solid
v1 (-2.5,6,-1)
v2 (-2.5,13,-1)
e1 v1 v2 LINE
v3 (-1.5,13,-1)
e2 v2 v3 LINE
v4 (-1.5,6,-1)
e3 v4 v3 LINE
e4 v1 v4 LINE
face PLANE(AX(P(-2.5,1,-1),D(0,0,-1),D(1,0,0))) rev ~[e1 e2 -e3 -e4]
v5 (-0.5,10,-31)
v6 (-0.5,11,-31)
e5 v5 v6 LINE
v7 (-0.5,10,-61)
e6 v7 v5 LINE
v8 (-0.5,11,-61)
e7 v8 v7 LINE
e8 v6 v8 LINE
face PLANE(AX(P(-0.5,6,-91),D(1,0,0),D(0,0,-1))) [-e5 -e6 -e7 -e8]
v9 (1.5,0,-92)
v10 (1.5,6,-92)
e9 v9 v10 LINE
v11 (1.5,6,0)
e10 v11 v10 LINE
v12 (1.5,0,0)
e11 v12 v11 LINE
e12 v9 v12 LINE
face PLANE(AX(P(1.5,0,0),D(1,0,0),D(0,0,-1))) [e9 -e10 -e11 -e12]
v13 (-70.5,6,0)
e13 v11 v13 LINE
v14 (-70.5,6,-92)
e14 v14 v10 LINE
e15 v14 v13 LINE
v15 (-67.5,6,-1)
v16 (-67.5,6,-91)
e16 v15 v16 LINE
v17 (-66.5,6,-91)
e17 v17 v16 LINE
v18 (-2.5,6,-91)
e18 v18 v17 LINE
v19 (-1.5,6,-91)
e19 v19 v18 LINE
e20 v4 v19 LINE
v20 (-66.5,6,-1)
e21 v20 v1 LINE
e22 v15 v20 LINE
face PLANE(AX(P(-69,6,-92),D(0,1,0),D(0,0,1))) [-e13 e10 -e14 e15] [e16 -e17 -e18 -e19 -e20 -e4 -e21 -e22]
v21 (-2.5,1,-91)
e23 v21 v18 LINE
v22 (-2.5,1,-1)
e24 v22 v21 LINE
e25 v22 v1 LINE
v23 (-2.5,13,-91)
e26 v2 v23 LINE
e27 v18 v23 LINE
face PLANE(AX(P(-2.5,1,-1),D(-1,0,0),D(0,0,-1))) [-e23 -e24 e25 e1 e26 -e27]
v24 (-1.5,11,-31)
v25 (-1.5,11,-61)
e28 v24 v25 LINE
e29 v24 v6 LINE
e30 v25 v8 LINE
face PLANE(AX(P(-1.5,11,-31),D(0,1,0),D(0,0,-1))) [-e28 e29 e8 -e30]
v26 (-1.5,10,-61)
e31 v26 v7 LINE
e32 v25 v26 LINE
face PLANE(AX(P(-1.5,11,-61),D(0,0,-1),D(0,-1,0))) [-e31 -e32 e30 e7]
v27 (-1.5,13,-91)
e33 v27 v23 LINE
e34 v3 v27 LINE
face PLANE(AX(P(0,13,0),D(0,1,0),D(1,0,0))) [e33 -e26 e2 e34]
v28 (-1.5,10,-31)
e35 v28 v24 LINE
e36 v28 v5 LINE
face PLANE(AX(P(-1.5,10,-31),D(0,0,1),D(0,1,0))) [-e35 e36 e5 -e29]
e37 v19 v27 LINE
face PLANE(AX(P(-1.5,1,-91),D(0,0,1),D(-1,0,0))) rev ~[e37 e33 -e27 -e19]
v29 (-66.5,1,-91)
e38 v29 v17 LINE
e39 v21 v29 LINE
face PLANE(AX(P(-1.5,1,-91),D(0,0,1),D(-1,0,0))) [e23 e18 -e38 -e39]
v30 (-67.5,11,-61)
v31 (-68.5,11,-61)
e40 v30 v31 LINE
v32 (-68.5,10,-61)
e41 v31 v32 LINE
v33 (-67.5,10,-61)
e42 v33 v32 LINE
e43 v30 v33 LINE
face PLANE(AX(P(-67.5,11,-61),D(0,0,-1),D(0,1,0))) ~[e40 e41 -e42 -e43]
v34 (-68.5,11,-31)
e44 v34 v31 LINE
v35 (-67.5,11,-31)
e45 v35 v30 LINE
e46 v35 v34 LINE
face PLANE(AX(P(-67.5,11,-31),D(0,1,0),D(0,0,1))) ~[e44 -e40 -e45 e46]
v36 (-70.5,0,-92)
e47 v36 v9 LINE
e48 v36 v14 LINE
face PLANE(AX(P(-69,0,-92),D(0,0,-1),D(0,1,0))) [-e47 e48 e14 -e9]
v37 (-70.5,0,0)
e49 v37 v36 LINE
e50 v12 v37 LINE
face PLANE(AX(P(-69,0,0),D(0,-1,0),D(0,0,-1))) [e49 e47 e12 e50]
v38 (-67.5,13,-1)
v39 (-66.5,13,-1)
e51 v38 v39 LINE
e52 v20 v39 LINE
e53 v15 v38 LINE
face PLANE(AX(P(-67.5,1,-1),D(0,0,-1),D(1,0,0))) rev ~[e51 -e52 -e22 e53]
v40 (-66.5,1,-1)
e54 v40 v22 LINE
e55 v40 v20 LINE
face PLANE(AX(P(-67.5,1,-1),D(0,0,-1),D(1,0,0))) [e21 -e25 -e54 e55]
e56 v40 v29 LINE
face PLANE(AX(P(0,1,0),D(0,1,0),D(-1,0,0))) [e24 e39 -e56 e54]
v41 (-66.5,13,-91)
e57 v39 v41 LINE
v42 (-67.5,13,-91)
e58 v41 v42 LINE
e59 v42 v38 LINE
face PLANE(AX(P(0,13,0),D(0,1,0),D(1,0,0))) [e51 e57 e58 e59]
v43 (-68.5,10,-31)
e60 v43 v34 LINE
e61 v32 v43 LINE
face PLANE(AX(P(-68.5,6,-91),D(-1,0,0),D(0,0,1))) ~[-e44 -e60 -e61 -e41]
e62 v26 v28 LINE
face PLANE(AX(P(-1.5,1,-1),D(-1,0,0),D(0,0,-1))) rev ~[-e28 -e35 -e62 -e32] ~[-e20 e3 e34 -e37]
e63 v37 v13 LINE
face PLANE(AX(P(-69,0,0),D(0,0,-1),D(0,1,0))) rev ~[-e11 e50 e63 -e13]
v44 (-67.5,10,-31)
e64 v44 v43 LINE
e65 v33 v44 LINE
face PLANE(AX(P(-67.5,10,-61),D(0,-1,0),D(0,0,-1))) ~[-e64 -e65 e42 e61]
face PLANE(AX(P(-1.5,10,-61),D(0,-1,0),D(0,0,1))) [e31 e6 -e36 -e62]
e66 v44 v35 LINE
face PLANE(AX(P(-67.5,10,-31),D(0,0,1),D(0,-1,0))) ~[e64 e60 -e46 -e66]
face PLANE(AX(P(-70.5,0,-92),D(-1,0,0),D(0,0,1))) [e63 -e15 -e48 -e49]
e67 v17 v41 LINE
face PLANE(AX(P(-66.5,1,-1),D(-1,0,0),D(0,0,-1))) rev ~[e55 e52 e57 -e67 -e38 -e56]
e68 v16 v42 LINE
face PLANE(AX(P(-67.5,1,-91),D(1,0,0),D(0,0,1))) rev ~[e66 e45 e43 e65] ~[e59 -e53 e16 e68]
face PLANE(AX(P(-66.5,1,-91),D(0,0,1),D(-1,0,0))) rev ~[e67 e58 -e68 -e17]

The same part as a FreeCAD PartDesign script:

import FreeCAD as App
import Part
import Sketcher

doc = App.newDocument("Part")
params = doc.addObject("Spreadsheet::Sheet", "Params")
for row, (alias, value) in enumerate([
    ("sketch1_width", "69 mm"),
    ("sketch1_height", "92 mm"),
    ("pad1_length", "1 mm"),
    ("sketch2_width", "69 mm"),
    ("sketch2_width2", "66 mm"),
    ("sketch2_height", "92 mm"),
    ("pad2_length", "5 mm"),
    ("sketch3_width", "1 mm"),
    ("sketch3_height", "90 mm"),
    ("pad3_length", "12 mm"),
    ("sketch4_width", "1 mm"),
    ("sketch4_height", "30 mm"),
    ("pad4_length", "1 mm"),
    ("sketch5_width", "6 mm"),
    ("sketch5_height", "92 mm"),
    ("pad5_length", "1.5 mm"),
    ("sketch6_width", "6 mm"),
    ("sketch6_height", "92 mm"),
    ("pad6_length", "1.5 mm"),
], start=1):
    params.set(f"A{row}", alias)
    params.set(f"B{row}", "=" + value)
    params.setAlias(f"B{row}", alias)

body = doc.addObject("PartDesign::Body", "Body")

# Sketch on XZ plane
sketch1 = body.newObject("Sketcher::SketchObject", "Sketch")
sketch1.AttachmentSupport = (doc.getObject("XZ_Plane"), [""])
sketch1.MapMode = "FlatFace"
sketch1.addGeometry(Part.LineSegment(App.Vector(-69, 0, 0), App.Vector(0, 0, 0)), False)
sketch1.addGeometry(Part.LineSegment(App.Vector(0, 0, 0), App.Vector(0, -92, 0)), False)
sketch1.addGeometry(Part.LineSegment(App.Vector(0, -92, 0), App.Vector(-69, -92, 0)), False)
sketch1.addGeometry(Part.LineSegment(App.Vector(-69, -92, 0), App.Vector(-69, 0, 0)), False)
sketch1.addConstraint(Sketcher.Constraint("Coincident", 0, 2, 1, 1))
sketch1.addConstraint(Sketcher.Constraint("Coincident", 1, 2, 2, 1))
sketch1.addConstraint(Sketcher.Constraint("Coincident", 2, 2, 3, 1))
sketch1.addConstraint(Sketcher.Constraint("Coincident", 3, 2, 0, 1))
sketch1.addConstraint(Sketcher.Constraint("Horizontal", 0))
sketch1.addConstraint(Sketcher.Constraint("Vertical", 1))
sketch1.addConstraint(Sketcher.Constraint("Horizontal", 2))
sketch1.addConstraint(Sketcher.Constraint("Vertical", 3))
sketch1.addConstraint(Sketcher.Constraint("Coincident", 0, 2, -1, 1))
sketch1.addConstraint(Sketcher.Constraint("DistanceX", 0, 1, 0, 2, 69.0))
sketch1.addConstraint(Sketcher.Constraint("DistanceY", 1, 2, 1, 1, 92.0))
sketch1.setExpression("Constraints[9]", "Params.sketch1_width")
sketch1.setExpression("Constraints[10]", "Params.sketch1_height")
pad1 = body.newObject("PartDesign::Pad", "Pad")
pad1.Profile = sketch1
pad1.setExpression("Length", "Params.pad1_length")
pad1.Reversed = True

# Sketch on XZ plane
sketch2 = body.newObject("Sketcher::SketchObject", "Sketch001")
sketch2.AttachmentSupport = (doc.getObject("XZ_Plane"), [""])
sketch2.MapMode = "FlatFace"
sketch2.AttachmentOffset = App.Placement(App.Vector(0, 0, -1), App.Rotation())
sketch2.addGeometry(Part.LineSegment(App.Vector(-69, -92, 0), App.Vector(-69, 0, 0)), False)
sketch2.addGeometry(Part.LineSegment(App.Vector(-69, 0, 0), App.Vector(0, 0, 0)), False)
sketch2.addGeometry(Part.LineSegment(App.Vector(0, 0, 0), App.Vector(0, -92, 0)), False)
sketch2.addGeometry(Part.LineSegment(App.Vector(0, -92, 0), App.Vector(-69, -92, 0)), False)
sketch2.addGeometry(Part.LineSegment(App.Vector(-1.5, -1, 0), App.Vector(-67.5, -1, 0)), False)
sketch2.addGeometry(Part.LineSegment(App.Vector(-67.5, -1, 0), App.Vector(-67.5, -91, 0)), False)
sketch2.addGeometry(Part.LineSegment(App.Vector(-67.5, -91, 0), App.Vector(-1.5, -91, 0)), False)
sketch2.addGeometry(Part.LineSegment(App.Vector(-1.5, -91, 0), App.Vector(-1.5, -1, 0)), False)
sketch2.addConstraint(Sketcher.Constraint("Coincident", 0, 2, 1, 1))
sketch2.addConstraint(Sketcher.Constraint("Coincident", 1, 2, 2, 1))
sketch2.addConstraint(Sketcher.Constraint("Coincident", 2, 2, 3, 1))
sketch2.addConstraint(Sketcher.Constraint("Coincident", 3, 2, 0, 1))
sketch2.addConstraint(Sketcher.Constraint("Coincident", 4, 2, 5, 1))
sketch2.addConstraint(Sketcher.Constraint("Coincident", 5, 2, 6, 1))
sketch2.addConstraint(Sketcher.Constraint("Coincident", 6, 2, 7, 1))
sketch2.addConstraint(Sketcher.Constraint("Coincident", 7, 2, 4, 1))
sketch2.addConstraint(Sketcher.Constraint("Vertical", 0))
sketch2.addConstraint(Sketcher.Constraint("Horizontal", 1))
sketch2.addConstraint(Sketcher.Constraint("Vertical", 2))
sketch2.addConstraint(Sketcher.Constraint("Horizontal", 3))
sketch2.addConstraint(Sketcher.Constraint("Horizontal", 4))
sketch2.addConstraint(Sketcher.Constraint("Vertical", 5))
sketch2.addConstraint(Sketcher.Constraint("Horizontal", 6))
sketch2.addConstraint(Sketcher.Constraint("Vertical", 7))
sketch2.addConstraint(Sketcher.Constraint("Coincident", 1, 2, -1, 1))
sketch2.addConstraint(Sketcher.Constraint("DistanceY", 4, 2, -1, 1, 1.0))
sketch2.addConstraint(Sketcher.Constraint("DistanceY", 3, 2, 5, 2, 1.0))
sketch2.addConstraint(Sketcher.Constraint("DistanceX", 1, 1, 1, 2, 69.0))
sketch2.addConstraint(Sketcher.Constraint("DistanceX", 4, 2, 4, 1, 66.0))
sketch2.addConstraint(Sketcher.Constraint("DistanceY", 0, 1, 0, 2, 92.0))
sketch2.addConstraint(Sketcher.Constraint("DistanceX", 4, 2, -1, 1, 67.5))
sketch2.setExpression("Constraints[19]", "Params.sketch2_width")
sketch2.setExpression("Constraints[20]", "Params.sketch2_width2")
sketch2.setExpression("Constraints[21]", "Params.sketch2_height")
pad2 = body.newObject("PartDesign::Pad", "Pad001")
pad2.Profile = sketch2
pad2.setExpression("Length", "Params.pad2_length")
pad2.Reversed = True

# Sketch on XZ plane
sketch3 = body.newObject("Sketcher::SketchObject", "Sketch002")
sketch3.AttachmentSupport = (doc.getObject("XZ_Plane"), [""])
sketch3.MapMode = "FlatFace"
sketch3.AttachmentOffset = App.Placement(App.Vector(0, 0, -1), App.Rotation())
sketch3.addGeometry(Part.LineSegment(App.Vector(-66.5, -91, 0), App.Vector(-67.5, -91, 0)), False)
sketch3.addGeometry(Part.LineSegment(App.Vector(-67.5, -91, 0), App.Vector(-67.5, -1, 0)), False)
sketch3.addGeometry(Part.LineSegment(App.Vector(-67.5, -1, 0), App.Vector(-66.5, -1, 0)), False)
sketch3.addGeometry(Part.LineSegment(App.Vector(-66.5, -1, 0), App.Vector(-66.5, -91, 0)), False)
sketch3.addGeometry(Part.LineSegment(App.Vector(-1.5, -91, 0), App.Vector(-2.5, -91, 0)), False)
sketch3.addGeometry(Part.LineSegment(App.Vector(-2.5, -91, 0), App.Vector(-2.5, -1, 0)), False)
sketch3.addGeometry(Part.LineSegment(App.Vector(-2.5, -1, 0), App.Vector(-1.5, -1, 0)), False)
sketch3.addGeometry(Part.LineSegment(App.Vector(-1.5, -1, 0), App.Vector(-1.5, -91, 0)), False)
sketch3.addConstraint(Sketcher.Constraint("Coincident", 0, 2, 1, 1))
sketch3.addConstraint(Sketcher.Constraint("Coincident", 1, 2, 2, 1))
sketch3.addConstraint(Sketcher.Constraint("Coincident", 2, 2, 3, 1))
sketch3.addConstraint(Sketcher.Constraint("Coincident", 3, 2, 0, 1))
sketch3.addConstraint(Sketcher.Constraint("Coincident", 4, 2, 5, 1))
sketch3.addConstraint(Sketcher.Constraint("Coincident", 5, 2, 6, 1))
sketch3.addConstraint(Sketcher.Constraint("Coincident", 6, 2, 7, 1))
sketch3.addConstraint(Sketcher.Constraint("Coincident", 7, 2, 4, 1))
sketch3.addConstraint(Sketcher.Constraint("Horizontal", 0))
sketch3.addConstraint(Sketcher.Constraint("Vertical", 1))
sketch3.addConstraint(Sketcher.Constraint("Horizontal", 2))
sketch3.addConstraint(Sketcher.Constraint("Vertical", 3))
sketch3.addConstraint(Sketcher.Constraint("Horizontal", 4))
sketch3.addConstraint(Sketcher.Constraint("Vertical", 5))
sketch3.addConstraint(Sketcher.Constraint("Horizontal", 6))
sketch3.addConstraint(Sketcher.Constraint("Vertical", 7))
sketch3.addConstraint(Sketcher.Constraint("Horizontal", 3, 2, 4, 2))
sketch3.addConstraint(Sketcher.Constraint("Horizontal", 2, 2, 5, 2))
sketch3.addConstraint(Sketcher.Constraint("Equal", 2, 4))
sketch3.addConstraint(Sketcher.Constraint("DistanceX", 0, 2, 0, 1, 1.0))
sketch3.addConstraint(Sketcher.Constraint("DistanceY", 1, 2, -1, 1, 1.0))
sketch3.addConstraint(Sketcher.Constraint("DistanceY", 1, 1, 1, 2, 90.0))
sketch3.addConstraint(Sketcher.Constraint("DistanceX", 3, 2, 4, 2, 64.0))
sketch3.addConstraint(Sketcher.Constraint("DistanceX", 0, 2, -1, 1, 67.5))
sketch3.setExpression("Constraints[19]", "Params.sketch3_width")
sketch3.setExpression("Constraints[21]", "Params.sketch3_height")
pad3 = body.newObject("PartDesign::Pad", "Pad002")
pad3.Profile = sketch3
pad3.setExpression("Length", "Params.pad3_length")
pad3.Reversed = True

# Sketch on YZ plane
sketch4 = body.newObject("Sketcher::SketchObject", "Sketch003")
sketch4.AttachmentSupport = (doc.getObject("YZ_Plane"), [""])
sketch4.MapMode = "FlatFace"
sketch4.AttachmentOffset = App.Placement(App.Vector(0, 0, -1.5), App.Rotation())
sketch4.addGeometry(Part.LineSegment(App.Vector(11, -61, 0), App.Vector(11, -31, 0)), False)
sketch4.addGeometry(Part.LineSegment(App.Vector(11, -31, 0), App.Vector(10, -31, 0)), False)
sketch4.addGeometry(Part.LineSegment(App.Vector(10, -31, 0), App.Vector(10, -61, 0)), False)
sketch4.addGeometry(Part.LineSegment(App.Vector(10, -61, 0), App.Vector(11, -61, 0)), False)
sketch4.addConstraint(Sketcher.Constraint("Coincident", 0, 2, 1, 1))
sketch4.addConstraint(Sketcher.Constraint("Coincident", 1, 2, 2, 1))
sketch4.addConstraint(Sketcher.Constraint("Coincident", 2, 2, 3, 1))
sketch4.addConstraint(Sketcher.Constraint("Coincident", 3, 2, 0, 1))
sketch4.addConstraint(Sketcher.Constraint("Vertical", 0))
sketch4.addConstraint(Sketcher.Constraint("Horizontal", 1))
sketch4.addConstraint(Sketcher.Constraint("Vertical", 2))
sketch4.addConstraint(Sketcher.Constraint("Horizontal", 3))
sketch4.addConstraint(Sketcher.Constraint("DistanceX", 1, 2, 1, 1, 1.0))
sketch4.addConstraint(Sketcher.Constraint("DistanceY", 0, 1, 0, 2, 30.0))
sketch4.addConstraint(Sketcher.Constraint("DistanceX", -1, 1, 0, 2, 11.0))
sketch4.addConstraint(Sketcher.Constraint("DistanceY", 0, 2, -1, 1, 31.0))
sketch4.setExpression("Constraints[8]", "Params.sketch4_width")
sketch4.setExpression("Constraints[9]", "Params.sketch4_height")
pad4 = body.newObject("PartDesign::Pad", "Pad003")
pad4.Profile = sketch4
pad4.setExpression("Length", "Params.pad4_length")
doc.recompute()

datumplane = body.newObject("PartDesign::Plane", "DatumPlane")
datumplane.AttachmentSupport = (doc.getObject("YZ_Plane"), [""])
datumplane.MapMode = "FlatFace"
datumplane.AttachmentOffset = App.Placement(App.Vector(0, 0, -34.5), App.Rotation())
mirrored = body.newObject("PartDesign::Mirrored", "Mirrored")
mirrored.Originals = [pad4]
mirrored.MirrorPlane = (datumplane, [""])
body.Tip = mirrored

# Sketch on YZ plane
sketch5 = body.newObject("Sketcher::SketchObject", "Sketch004")
sketch5.AttachmentSupport = (doc.getObject("YZ_Plane"), [""])
sketch5.MapMode = "FlatFace"
sketch5.addGeometry(Part.LineSegment(App.Vector(0, 0, 0), App.Vector(0, -92, 0)), False)
sketch5.addGeometry(Part.LineSegment(App.Vector(0, -92, 0), App.Vector(6, -92, 0)), False)
sketch5.addGeometry(Part.LineSegment(App.Vector(6, -92, 0), App.Vector(6, 0, 0)), False)
sketch5.addGeometry(Part.LineSegment(App.Vector(6, 0, 0), App.Vector(0, 0, 0)), False)
sketch5.addConstraint(Sketcher.Constraint("Coincident", 0, 2, 1, 1))
sketch5.addConstraint(Sketcher.Constraint("Coincident", 1, 2, 2, 1))
sketch5.addConstraint(Sketcher.Constraint("Coincident", 2, 2, 3, 1))
sketch5.addConstraint(Sketcher.Constraint("Coincident", 3, 2, 0, 1))
sketch5.addConstraint(Sketcher.Constraint("Vertical", 0))
sketch5.addConstraint(Sketcher.Constraint("Horizontal", 1))
sketch5.addConstraint(Sketcher.Constraint("Vertical", 2))
sketch5.addConstraint(Sketcher.Constraint("Horizontal", 3))
sketch5.addConstraint(Sketcher.Constraint("Coincident", 3, 2, -1, 1))
sketch5.addConstraint(Sketcher.Constraint("DistanceX", 1, 1, 1, 2, 6.0))
sketch5.addConstraint(Sketcher.Constraint("DistanceY", 0, 2, 0, 1, 92.0))
sketch5.setExpression("Constraints[9]", "Params.sketch5_width")
sketch5.setExpression("Constraints[10]", "Params.sketch5_height")
pad5 = body.newObject("PartDesign::Pad", "Pad004")
pad5.Profile = sketch5
pad5.setExpression("Length", "Params.pad5_length")

# Sketch on YZ plane
sketch6 = body.newObject("Sketcher::SketchObject", "Sketch005")
sketch6.AttachmentSupport = (doc.getObject("YZ_Plane"), [""])
sketch6.MapMode = "FlatFace"
sketch6.AttachmentOffset = App.Placement(App.Vector(0, 0, -69), App.Rotation())
sketch6.addGeometry(Part.LineSegment(App.Vector(0, -92, 0), App.Vector(0, 0, 0)), False)
sketch6.addGeometry(Part.LineSegment(App.Vector(0, 0, 0), App.Vector(6, 0, 0)), False)
sketch6.addGeometry(Part.LineSegment(App.Vector(6, 0, 0), App.Vector(6, -92, 0)), False)
sketch6.addGeometry(Part.LineSegment(App.Vector(6, -92, 0), App.Vector(0, -92, 0)), False)
sketch6.addConstraint(Sketcher.Constraint("Coincident", 0, 2, 1, 1))
sketch6.addConstraint(Sketcher.Constraint("Coincident", 1, 2, 2, 1))
sketch6.addConstraint(Sketcher.Constraint("Coincident", 2, 2, 3, 1))
sketch6.addConstraint(Sketcher.Constraint("Coincident", 3, 2, 0, 1))
sketch6.addConstraint(Sketcher.Constraint("Vertical", 0))
sketch6.addConstraint(Sketcher.Constraint("Horizontal", 1))
sketch6.addConstraint(Sketcher.Constraint("Vertical", 2))
sketch6.addConstraint(Sketcher.Constraint("Horizontal", 3))
sketch6.addConstraint(Sketcher.Constraint("Coincident", 0, 2, -1, 1))
sketch6.addConstraint(Sketcher.Constraint("DistanceX", 1, 1, 1, 2, 6.0))
sketch6.addConstraint(Sketcher.Constraint("DistanceY", 0, 1, 0, 2, 92.0))
sketch6.setExpression("Constraints[9]", "Params.sketch6_width")
sketch6.setExpression("Constraints[10]", "Params.sketch6_height")
pad6 = body.newObject("PartDesign::Pad", "Pad005")
pad6.Profile = sketch6
pad6.setExpression("Length", "Params.pad6_length")
pad6.Reversed = True

doc.recompute()
